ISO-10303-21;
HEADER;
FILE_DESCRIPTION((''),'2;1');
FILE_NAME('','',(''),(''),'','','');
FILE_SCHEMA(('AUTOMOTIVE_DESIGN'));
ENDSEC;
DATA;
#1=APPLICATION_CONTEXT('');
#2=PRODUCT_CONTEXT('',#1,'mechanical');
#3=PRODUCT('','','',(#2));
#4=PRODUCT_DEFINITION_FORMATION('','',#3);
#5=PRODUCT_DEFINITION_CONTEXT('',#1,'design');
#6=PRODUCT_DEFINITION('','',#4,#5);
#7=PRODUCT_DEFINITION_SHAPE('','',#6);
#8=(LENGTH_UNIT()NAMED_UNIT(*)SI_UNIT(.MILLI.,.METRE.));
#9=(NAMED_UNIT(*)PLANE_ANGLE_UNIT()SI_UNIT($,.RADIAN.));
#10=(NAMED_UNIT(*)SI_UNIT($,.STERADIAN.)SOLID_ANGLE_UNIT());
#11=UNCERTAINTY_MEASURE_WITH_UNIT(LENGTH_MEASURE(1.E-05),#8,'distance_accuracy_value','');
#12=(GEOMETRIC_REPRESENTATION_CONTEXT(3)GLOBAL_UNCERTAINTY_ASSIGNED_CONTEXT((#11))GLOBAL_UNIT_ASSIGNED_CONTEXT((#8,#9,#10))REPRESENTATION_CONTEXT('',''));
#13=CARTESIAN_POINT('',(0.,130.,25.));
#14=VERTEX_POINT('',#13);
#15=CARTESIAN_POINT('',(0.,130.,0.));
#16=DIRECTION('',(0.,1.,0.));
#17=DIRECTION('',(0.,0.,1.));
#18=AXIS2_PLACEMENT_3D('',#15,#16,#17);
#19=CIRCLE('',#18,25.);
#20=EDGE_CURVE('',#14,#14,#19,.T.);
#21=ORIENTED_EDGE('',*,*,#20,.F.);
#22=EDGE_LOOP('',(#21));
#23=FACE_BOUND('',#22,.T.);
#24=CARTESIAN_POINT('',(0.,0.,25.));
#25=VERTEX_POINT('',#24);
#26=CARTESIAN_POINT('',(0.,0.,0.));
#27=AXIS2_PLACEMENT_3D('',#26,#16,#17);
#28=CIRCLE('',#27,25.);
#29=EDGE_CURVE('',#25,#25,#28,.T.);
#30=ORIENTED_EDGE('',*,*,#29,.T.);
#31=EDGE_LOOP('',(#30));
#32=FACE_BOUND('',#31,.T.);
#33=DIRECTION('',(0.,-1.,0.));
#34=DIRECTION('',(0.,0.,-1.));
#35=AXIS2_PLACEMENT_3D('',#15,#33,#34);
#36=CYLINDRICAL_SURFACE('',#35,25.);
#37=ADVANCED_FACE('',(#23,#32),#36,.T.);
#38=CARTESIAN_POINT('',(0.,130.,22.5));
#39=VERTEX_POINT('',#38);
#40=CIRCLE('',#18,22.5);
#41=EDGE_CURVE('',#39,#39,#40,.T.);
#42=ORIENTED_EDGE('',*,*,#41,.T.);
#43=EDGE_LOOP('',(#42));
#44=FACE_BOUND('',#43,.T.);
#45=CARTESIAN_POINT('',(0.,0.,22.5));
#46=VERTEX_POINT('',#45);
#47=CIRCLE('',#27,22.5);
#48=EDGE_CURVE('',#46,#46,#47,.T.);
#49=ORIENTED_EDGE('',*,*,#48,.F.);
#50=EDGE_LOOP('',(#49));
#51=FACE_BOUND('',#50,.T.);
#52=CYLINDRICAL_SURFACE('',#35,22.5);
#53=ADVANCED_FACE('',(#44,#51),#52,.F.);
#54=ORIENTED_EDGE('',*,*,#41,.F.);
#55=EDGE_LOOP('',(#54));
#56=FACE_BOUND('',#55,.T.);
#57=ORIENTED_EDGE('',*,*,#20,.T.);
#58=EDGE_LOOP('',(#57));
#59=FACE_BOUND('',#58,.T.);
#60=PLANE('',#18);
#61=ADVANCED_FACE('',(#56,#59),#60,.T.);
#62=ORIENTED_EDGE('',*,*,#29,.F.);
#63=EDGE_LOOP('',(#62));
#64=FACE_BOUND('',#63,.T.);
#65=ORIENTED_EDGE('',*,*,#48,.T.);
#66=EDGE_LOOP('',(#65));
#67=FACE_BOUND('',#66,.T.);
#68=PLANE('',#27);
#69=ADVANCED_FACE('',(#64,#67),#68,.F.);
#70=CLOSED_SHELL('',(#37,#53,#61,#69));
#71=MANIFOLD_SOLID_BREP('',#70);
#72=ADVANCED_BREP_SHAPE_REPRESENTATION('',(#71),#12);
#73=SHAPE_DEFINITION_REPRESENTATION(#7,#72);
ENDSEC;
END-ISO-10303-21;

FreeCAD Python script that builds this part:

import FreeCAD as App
import Part
import Sketcher
Q = App.Units.Quantity

doc = App.newDocument("Part")
body = doc.addObject("PartDesign::Body", "Body")

# Sketch on XZ plane
sketch1 = doc.addObject("Sketcher::SketchObject", "Sketch")
body.addObject(sketch1)
sketch1.AttachmentSupport = (doc.XZ_Plane, [""])
sketch1.MapMode = "FlatFace"
sketch1.addGeometry([
    Part.Circle(App.Vector(0, 0, 0), App.Vector(0, 0, 1), 25),
    Part.Circle(App.Vector(0, 0, 0), App.Vector(0, 0, 1), 22),
], False)
sketch1.addConstraint([
    Sketcher.Constraint("Coincident", 0, 3, -1, 1),
    Sketcher.Constraint("Coincident", 1, 3, -1, 1),
    Sketcher.Constraint("Diameter", 0, Q("50 mm")),
    Sketcher.Constraint("Diameter", 1, Q("45 mm")),
])
pad1 = doc.addObject("PartDesign::Pad", "Pad")
body.addObject(pad1)
pad1.Profile = sketch1
pad1.Length = 130
pad1.Reversed = True

doc.recompute()
